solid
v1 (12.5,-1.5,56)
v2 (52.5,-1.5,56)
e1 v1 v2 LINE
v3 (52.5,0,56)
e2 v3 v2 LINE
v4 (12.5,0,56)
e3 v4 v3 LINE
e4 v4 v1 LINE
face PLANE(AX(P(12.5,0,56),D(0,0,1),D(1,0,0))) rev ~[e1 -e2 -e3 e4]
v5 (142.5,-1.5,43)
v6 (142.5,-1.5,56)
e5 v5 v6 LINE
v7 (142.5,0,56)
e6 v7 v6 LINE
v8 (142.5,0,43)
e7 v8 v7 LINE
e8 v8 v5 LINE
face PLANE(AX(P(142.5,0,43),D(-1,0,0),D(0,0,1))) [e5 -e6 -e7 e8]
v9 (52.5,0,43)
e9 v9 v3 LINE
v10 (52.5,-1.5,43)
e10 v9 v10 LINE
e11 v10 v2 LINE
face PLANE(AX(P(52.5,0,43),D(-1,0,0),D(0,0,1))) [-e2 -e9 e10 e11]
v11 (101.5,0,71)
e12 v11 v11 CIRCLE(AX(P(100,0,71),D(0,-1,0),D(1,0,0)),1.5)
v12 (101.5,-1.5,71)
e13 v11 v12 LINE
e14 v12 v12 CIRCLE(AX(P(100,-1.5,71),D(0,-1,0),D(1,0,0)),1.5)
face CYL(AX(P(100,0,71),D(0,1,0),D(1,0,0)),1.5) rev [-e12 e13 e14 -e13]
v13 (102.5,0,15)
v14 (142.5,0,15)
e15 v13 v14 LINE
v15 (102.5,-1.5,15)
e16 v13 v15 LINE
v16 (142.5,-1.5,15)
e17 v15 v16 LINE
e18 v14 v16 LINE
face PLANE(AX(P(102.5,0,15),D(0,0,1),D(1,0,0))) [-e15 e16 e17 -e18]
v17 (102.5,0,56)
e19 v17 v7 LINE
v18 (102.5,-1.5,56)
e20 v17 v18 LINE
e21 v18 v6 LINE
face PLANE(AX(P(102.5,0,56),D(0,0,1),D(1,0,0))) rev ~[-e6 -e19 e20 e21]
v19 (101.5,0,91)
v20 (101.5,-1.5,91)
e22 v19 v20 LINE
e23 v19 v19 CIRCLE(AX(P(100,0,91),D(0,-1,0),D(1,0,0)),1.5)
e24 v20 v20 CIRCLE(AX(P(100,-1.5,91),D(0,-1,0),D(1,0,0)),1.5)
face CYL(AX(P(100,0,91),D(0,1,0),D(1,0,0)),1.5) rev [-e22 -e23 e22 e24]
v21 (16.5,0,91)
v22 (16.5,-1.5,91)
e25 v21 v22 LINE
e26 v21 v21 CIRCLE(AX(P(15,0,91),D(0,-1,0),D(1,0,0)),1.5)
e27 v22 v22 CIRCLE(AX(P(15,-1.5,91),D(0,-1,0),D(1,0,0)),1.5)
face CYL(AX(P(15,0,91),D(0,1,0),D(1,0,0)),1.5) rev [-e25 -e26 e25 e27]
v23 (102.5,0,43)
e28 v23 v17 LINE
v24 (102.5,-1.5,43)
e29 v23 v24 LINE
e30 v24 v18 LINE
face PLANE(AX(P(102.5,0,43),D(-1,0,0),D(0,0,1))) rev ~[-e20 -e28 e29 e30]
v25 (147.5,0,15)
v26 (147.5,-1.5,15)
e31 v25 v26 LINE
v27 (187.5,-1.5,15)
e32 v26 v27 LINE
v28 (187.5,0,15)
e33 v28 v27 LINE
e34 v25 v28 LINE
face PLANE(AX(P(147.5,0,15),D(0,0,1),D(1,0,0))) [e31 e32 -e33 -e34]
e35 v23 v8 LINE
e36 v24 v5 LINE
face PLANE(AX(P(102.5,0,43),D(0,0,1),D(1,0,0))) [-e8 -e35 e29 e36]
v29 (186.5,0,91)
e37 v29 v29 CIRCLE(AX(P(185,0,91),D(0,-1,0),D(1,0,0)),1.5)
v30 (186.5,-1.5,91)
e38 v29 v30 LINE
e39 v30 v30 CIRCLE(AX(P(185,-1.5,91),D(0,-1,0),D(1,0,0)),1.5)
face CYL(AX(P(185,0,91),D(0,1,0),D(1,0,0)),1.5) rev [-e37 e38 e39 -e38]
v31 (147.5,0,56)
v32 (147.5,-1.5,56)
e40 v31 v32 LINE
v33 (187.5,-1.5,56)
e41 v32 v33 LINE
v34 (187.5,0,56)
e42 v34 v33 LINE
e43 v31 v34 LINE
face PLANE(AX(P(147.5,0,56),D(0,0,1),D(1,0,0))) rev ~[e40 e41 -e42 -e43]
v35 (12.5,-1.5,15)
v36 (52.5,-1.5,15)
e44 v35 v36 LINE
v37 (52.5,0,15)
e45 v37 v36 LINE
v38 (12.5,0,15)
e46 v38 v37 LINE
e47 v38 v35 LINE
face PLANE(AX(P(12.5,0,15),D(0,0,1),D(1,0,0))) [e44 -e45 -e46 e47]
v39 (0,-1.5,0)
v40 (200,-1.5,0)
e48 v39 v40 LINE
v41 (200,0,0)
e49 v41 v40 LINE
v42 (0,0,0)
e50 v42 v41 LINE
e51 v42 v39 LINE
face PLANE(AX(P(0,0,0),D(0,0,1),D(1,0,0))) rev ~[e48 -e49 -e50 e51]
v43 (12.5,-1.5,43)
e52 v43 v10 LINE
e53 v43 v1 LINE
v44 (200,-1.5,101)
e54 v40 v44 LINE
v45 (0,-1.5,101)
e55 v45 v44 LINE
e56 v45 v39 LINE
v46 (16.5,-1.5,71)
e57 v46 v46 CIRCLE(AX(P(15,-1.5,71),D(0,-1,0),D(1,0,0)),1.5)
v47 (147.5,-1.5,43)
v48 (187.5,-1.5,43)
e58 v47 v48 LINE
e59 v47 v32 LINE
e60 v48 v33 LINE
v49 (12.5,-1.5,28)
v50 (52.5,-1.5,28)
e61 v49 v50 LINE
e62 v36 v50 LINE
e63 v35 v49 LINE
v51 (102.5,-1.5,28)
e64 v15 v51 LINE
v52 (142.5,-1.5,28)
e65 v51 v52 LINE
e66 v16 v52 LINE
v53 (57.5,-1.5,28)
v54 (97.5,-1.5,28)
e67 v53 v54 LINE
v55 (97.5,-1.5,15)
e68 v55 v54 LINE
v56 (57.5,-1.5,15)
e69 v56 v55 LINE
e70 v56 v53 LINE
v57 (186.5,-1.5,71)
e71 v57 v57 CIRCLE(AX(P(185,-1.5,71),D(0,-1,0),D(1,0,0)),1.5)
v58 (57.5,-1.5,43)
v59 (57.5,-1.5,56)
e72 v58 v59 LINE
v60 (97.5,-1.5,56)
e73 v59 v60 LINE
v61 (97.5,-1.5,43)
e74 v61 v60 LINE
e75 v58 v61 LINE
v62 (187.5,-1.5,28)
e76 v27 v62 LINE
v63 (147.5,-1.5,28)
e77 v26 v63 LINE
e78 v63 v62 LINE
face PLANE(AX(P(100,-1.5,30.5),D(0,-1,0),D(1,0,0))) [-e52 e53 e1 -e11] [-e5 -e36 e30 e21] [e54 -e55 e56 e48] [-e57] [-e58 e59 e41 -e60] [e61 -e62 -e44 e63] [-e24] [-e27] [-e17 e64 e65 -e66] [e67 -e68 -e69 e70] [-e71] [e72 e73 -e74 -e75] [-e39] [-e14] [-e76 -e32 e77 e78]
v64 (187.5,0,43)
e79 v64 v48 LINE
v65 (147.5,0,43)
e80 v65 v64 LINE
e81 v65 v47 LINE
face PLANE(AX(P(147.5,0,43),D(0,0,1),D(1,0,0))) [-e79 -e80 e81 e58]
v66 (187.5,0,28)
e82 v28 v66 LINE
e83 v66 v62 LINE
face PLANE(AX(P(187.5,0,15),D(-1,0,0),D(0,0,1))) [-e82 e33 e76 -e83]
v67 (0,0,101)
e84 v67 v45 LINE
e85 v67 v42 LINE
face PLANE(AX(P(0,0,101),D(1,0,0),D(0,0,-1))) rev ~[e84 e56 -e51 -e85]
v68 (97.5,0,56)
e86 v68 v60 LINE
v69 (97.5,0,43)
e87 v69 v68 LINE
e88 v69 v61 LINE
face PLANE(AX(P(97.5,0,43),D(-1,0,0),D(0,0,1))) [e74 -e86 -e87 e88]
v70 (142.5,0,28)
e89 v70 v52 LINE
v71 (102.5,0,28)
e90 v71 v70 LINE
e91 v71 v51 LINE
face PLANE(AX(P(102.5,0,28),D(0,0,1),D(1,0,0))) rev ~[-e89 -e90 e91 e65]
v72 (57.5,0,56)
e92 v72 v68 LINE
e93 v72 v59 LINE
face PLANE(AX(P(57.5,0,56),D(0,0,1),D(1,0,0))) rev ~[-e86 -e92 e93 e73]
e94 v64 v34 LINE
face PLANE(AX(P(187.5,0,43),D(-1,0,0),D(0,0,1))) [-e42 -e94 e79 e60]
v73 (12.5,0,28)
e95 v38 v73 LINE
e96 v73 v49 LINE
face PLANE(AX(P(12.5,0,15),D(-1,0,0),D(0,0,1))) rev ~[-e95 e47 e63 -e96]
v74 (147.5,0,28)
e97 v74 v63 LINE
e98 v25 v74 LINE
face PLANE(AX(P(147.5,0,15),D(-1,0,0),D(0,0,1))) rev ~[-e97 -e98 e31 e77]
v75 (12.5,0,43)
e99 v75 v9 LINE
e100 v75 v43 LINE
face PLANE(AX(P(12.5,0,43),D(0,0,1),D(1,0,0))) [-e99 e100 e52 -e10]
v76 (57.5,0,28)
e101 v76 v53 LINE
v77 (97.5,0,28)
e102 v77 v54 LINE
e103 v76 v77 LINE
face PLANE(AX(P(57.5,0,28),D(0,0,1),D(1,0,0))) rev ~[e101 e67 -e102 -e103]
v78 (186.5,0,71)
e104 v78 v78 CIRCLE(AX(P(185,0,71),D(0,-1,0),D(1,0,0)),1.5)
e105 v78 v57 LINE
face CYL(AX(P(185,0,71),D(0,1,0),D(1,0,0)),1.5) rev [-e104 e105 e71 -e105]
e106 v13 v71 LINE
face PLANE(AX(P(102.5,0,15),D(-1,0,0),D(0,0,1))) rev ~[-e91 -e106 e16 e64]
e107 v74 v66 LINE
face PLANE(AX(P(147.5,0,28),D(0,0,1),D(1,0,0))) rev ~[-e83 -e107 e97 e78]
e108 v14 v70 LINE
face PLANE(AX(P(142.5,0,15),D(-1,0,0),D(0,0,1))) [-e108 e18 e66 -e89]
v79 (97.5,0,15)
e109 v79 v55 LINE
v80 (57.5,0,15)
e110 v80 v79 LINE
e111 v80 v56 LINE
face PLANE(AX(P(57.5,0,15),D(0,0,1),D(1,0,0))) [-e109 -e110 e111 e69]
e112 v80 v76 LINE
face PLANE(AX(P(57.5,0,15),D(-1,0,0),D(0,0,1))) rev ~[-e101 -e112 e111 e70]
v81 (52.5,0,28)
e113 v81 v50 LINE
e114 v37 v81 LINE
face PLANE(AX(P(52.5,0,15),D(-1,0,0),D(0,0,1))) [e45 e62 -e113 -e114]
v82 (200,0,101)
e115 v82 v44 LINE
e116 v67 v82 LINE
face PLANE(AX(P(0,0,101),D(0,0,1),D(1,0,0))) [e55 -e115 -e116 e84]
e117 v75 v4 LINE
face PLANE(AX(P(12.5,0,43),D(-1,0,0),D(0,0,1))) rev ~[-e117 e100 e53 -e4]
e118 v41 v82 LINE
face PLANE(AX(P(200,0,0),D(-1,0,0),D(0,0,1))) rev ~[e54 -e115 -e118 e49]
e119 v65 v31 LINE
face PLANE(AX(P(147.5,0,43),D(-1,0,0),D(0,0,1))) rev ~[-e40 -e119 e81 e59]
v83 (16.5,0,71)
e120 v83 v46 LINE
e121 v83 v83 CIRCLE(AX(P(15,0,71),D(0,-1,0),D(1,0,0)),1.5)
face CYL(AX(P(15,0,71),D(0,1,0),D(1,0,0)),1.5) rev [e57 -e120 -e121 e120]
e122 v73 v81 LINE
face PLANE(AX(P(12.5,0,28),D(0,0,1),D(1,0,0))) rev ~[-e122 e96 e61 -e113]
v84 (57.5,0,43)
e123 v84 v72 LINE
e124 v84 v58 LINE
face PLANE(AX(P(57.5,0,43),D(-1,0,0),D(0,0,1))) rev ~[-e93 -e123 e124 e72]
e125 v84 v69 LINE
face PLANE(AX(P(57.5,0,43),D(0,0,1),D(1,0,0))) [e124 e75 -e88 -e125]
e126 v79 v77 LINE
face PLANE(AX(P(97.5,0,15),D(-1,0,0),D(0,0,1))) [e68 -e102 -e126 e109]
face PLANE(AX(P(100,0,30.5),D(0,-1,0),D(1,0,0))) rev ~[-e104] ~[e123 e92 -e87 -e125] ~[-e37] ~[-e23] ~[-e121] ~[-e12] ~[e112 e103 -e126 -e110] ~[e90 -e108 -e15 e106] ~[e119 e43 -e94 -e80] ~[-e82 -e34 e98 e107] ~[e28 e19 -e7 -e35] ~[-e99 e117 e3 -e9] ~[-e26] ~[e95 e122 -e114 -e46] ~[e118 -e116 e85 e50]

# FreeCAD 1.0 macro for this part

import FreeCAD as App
import Part
import Sketcher


def add_polygon(sketch, points):
    """Adds a closed chain of lines whose ends are joined by coincident constraints."""
    first, n = sketch.GeometryCount, len(points)
    for a, b in zip(points, points[1:] + points[:1]):
        sketch.addGeometry(Part.LineSegment(App.Vector(*a, 0), App.Vector(*b, 0)), False)
    for i in range(n):
        sketch.addConstraint(Sketcher.Constraint("Coincident", first + i, 2, first + (i + 1) % n, 1))

doc = App.newDocument("Part")
body = doc.addObject("PartDesign::Body", "Body")

sketch1 = body.newObject("Sketcher::SketchObject", "Sketch")
sketch1.AttachmentSupport = (doc.getObject("XZ_Plane"), [""])
sketch1.MapMode = "FlatFace"
add_polygon(sketch1, [(0, 0), (200, 0), (200, 101), (0, 101)])
add_polygon(sketch1, [(52.5, 15), (12.5, 15), (12.5, 28), (52.5, 28)])
add_polygon(sketch1, [(97.5, 15), (57.5, 15), (57.5, 28), (97.5, 28)])
add_polygon(sketch1, [(52.5, 43), (12.5, 43), (12.5, 56), (52.5, 56)])
add_polygon(sketch1, [(97.5, 43), (57.5, 43), (57.5, 56), (97.5, 56)])
add_polygon(sketch1, [(142.5, 15), (102.5, 15), (102.5, 28), (142.5, 28)])
add_polygon(sketch1, [(187.5, 15), (147.5, 15), (147.5, 28), (187.5, 28)])
add_polygon(sketch1, [(142.5, 43), (102.5, 43), (102.5, 56), (142.5, 56)])
add_polygon(sketch1, [(187.5, 43), (147.5, 43), (147.5, 56), (187.5, 56)])
sketch1.addGeometry(Part.Circle(App.Vector(15, 71, 0), App.Vector(0, 0, 1), 1.5), False)
sketch1.addGeometry(Part.Circle(App.Vector(15, 91, 0), App.Vector(0, 0, 1), 1.5), False)
sketch1.addGeometry(Part.Circle(App.Vector(100, 71, 0), App.Vector(0, 0, 1), 1.5), False)
sketch1.addGeometry(Part.Circle(App.Vector(185, 71, 0), App.Vector(0, 0, 1), 1.5), False)
sketch1.addGeometry(Part.Circle(App.Vector(100, 91, 0), App.Vector(0, 0, 1), 1.5), False)
sketch1.addGeometry(Part.Circle(App.Vector(185, 91, 0), App.Vector(0, 0, 1), 1.5), False)
sketch1.addConstraint(Sketcher.Constraint("Horizontal", 0))
sketch1.addConstraint(Sketcher.Constraint("Vertical", 1))
sketch1.addConstraint(Sketcher.Constraint("Horizontal", 2))
sketch1.addConstraint(Sketcher.Constraint("Vertical", 3))
sketch1.addConstraint(Sketcher.Constraint("Horizontal", 4))
sketch1.addConstraint(Sketcher.Constraint("Vertical", 5))
sketch1.addConstraint(Sketcher.Constraint("Horizontal", 6))
sketch1.addConstraint(Sketcher.Constraint("Vertical", 7))
sketch1.addConstraint(Sketcher.Constraint("Horizontal", 8))
sketch1.addConstraint(Sketcher.Constraint("Vertical", 9))
sketch1.addConstraint(Sketcher.Constraint("Horizontal", 10))
sketch1.addConstraint(Sketcher.Constraint("Vertical", 11))
sketch1.addConstraint(Sketcher.Constraint("Horizontal", 12))
sketch1.addConstraint(Sketcher.Constraint("Vertical", 13))
sketch1.addConstraint(Sketcher.Constraint("Horizontal", 14))
sketch1.addConstraint(Sketcher.Constraint("Vertical", 15))
sketch1.addConstraint(Sketcher.Constraint("Horizontal", 16))
sketch1.addConstraint(Sketcher.Constraint("Vertical", 17))
sketch1.addConstraint(Sketcher.Constraint("Horizontal", 18))
sketch1.addConstraint(Sketcher.Constraint("Vertical", 19))
sketch1.addConstraint(Sketcher.Constraint("Horizontal", 20))
sketch1.addConstraint(Sketcher.Constraint("Vertical", 21))
sketch1.addConstraint(Sketcher.Constraint("Horizontal", 22))
sketch1.addConstraint(Sketcher.Constraint("Vertical", 23))
sketch1.addConstraint(Sketcher.Constraint("Horizontal", 24))
sketch1.addConstraint(Sketcher.Constraint("Vertical", 25))
sketch1.addConstraint(Sketcher.Constraint("Horizontal", 26))
sketch1.addConstraint(Sketcher.Constraint("Vertical", 27))
sketch1.addConstraint(Sketcher.Constraint("Horizontal", 28))
sketch1.addConstraint(Sketcher.Constraint("Vertical", 29))
sketch1.addConstraint(Sketcher.Constraint("Horizontal", 30))
sketch1.addConstraint(Sketcher.Constraint("Vertical", 31))
sketch1.addConstraint(Sketcher.Constraint("Horizontal", 32))
sketch1.addConstraint(Sketcher.Constraint("Vertical", 33))
sketch1.addConstraint(Sketcher.Constraint("Horizontal", 34))
sketch1.addConstraint(Sketcher.Constraint("Vertical", 35))
sketch1.addConstraint(Sketcher.Constraint("Coincident", 3, 2, -1, 1))
sketch1.addConstraint(Sketcher.Constraint("Equal", 36, 37))
sketch1.addConstraint(Sketcher.Constraint("Equal", 37, 38))
sketch1.addConstraint(Sketcher.Constraint("Equal", 38, 39))
sketch1.addConstraint(Sketcher.Constraint("Equal", 39, 40))
sketch1.addConstraint(Sketcher.Constraint("Equal", 40, 41))
sketch1.addConstraint(Sketcher.Constraint("Horizontal", 36, 3, 38, 3))
sketch1.addConstraint(Sketcher.Constraint("Horizontal", 38, 3, 39, 3))
sketch1.addConstraint(Sketcher.Constraint("Horizontal", 37, 3, 40, 3))
sketch1.addConstraint(Sketcher.Constraint("Horizontal", 40, 3, 41, 3))
sketch1.addConstraint(Sketcher.Constraint("Horizontal", 7, 2, 8, 2))
sketch1.addConstraint(Sketcher.Constraint("Horizontal", 6, 2, 9, 2))
sketch1.addConstraint(Sketcher.Constraint("Horizontal", 15, 2, 16, 2))
sketch1.addConstraint(Sketcher.Constraint("Horizontal", 14, 2, 17, 2))
sketch1.addConstraint(Sketcher.Constraint("Horizontal", 11, 2, 20, 2))
sketch1.addConstraint(Sketcher.Constraint("Horizontal", 10, 2, 21, 2))
sketch1.addConstraint(Sketcher.Constraint("Horizontal", 23, 2, 24, 2))
sketch1.addConstraint(Sketcher.Constraint("Horizontal", 22, 2, 25, 2))
sketch1.addConstraint(Sketcher.Constraint("Horizontal", 19, 2, 28, 2))
sketch1.addConstraint(Sketcher.Constraint("Horizontal", 18, 2, 29, 2))
sketch1.addConstraint(Sketcher.Constraint("Horizontal", 31, 2, 32, 2))
sketch1.addConstraint(Sketcher.Constraint("Horizontal", 30, 2, 33, 2))
sketch1.addConstraint(Sketcher.Constraint("Vertical", 36, 3, 37, 3))
sketch1.addConstraint(Sketcher.Constraint("Vertical", 38, 3, 40, 3))
sketch1.addConstraint(Sketcher.Constraint("Vertical", 39, 3, 41, 3))
sketch1.addConstraint(Sketcher.Constraint("Vertical", 5, 2, 12, 2))
sketch1.addConstraint(Sketcher.Constraint("Vertical", 7, 2, 14, 2))
sketch1.addConstraint(Sketcher.Constraint("Vertical", 9, 2, 16, 2))
sketch1.addConstraint(Sketcher.Constraint("Vertical", 11, 2, 18, 2))
sketch1.addConstraint(Sketcher.Constraint("Vertical", 21, 2, 28, 2))
sketch1.addConstraint(Sketcher.Constraint("Vertical", 23, 2, 30, 2))
sketch1.addConstraint(Sketcher.Constraint("Vertical", 25, 2, 32, 2))
sketch1.addConstraint(Sketcher.Constraint("Vertical", 27, 2, 34, 2))
sketch1.addConstraint(Sketcher.Constraint("Equal", 6, 8))
sketch1.addConstraint(Sketcher.Constraint("Equal", 18, 20))
sketch1.addConstraint(Sketcher.Constraint("Equal", 22, 24))
sketch1.addConstraint(Sketcher.Constraint("Equal", 11, 13))
sketch1.addConstraint(Sketcher.Constraint("Diameter", 36, 3.0))
sketch1.addConstraint(Sketcher.Constraint("DistanceX", 0, 1, 0, 2, 200.0))
sketch1.addConstraint(Sketcher.Constraint("DistanceX", 4, 2, 4, 1, 40.0))
sketch1.addConstraint(Sketcher.Constraint("DistanceY", 1, 1, 1, 2, 101.0))
sketch1.addConstraint(Sketcher.Constraint("DistanceY", 5, 1, 5, 2, 13.0))
sketch1.addConstraint(Sketcher.Constraint("DistanceX", -1, 1, 36, 3, 15.0))
sketch1.addConstraint(Sketcher.Constraint("DistanceY", -1, 1, 36, 3, 71.0))
sketch1.addConstraint(Sketcher.Constraint("DistanceY", -1, 1, 37, 3, 91.0))
sketch1.addConstraint(Sketcher.Constraint("DistanceX", -1, 1, 38, 3, 100.0))
sketch1.addConstraint(Sketcher.Constraint("DistanceX", -1, 1, 39, 3, 185.0))
sketch1.addConstraint(Sketcher.Constraint("DistanceY", -1, 1, 4, 2, 15.0))
sketch1.addConstraint(Sketcher.Constraint("DistanceY", -1, 1, 12, 2, 43.0))
sketch1.addConstraint(Sketcher.Constraint("DistanceX", 7, 2, 8, 2, 5.0))
sketch1.addConstraint(Sketcher.Constraint("DistanceX", 11, 2, 20, 2, 5.0))
sketch1.addConstraint(Sketcher.Constraint("DistanceX", 23, 2, 24, 2, 5.0))
sketch1.addConstraint(Sketcher.Constraint("DistanceX", -1, 1, 4, 2, 12.5))
pad1 = body.newObject("PartDesign::Pad", "Pad")
pad1.Profile = sketch1
pad1.Length = 1.5

doc.recompute()
